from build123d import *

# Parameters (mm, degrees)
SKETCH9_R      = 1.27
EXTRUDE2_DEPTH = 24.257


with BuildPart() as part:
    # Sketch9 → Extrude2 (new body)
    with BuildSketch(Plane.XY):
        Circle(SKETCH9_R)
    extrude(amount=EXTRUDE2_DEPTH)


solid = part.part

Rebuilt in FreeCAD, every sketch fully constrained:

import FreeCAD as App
import Part
import Sketcher
Q = App.Units.Quantity

doc = App.newDocument("Part")
body = doc.addObject("PartDesign::Body", "Body")

# Sketch on XY plane
sketch1 = doc.addObject("Sketcher::SketchObject", "Sketch")
body.addObject(sketch1)
sketch1.AttachmentSupport = (doc.XY_Plane, [""])
sketch1.MapMode = "FlatFace"
sketch1.addGeometry(Part.Circle(App.Vector(0, 0, 0), App.Vector(0, 0, 1), 1.3), False)
sketch1.addConstraint(Sketcher.Constraint("Coincident", 0, 3, -1, 1))
sketch1.addConstraint(Sketcher.Constraint("Diameter", 0, Q("0.1 in")))
pad1 = doc.addObject("PartDesign::Pad", "Pad")
body.addObject(pad1)
pad1.Profile = sketch1
pad1.Length = Q("0.955 in")

doc.recompute()
